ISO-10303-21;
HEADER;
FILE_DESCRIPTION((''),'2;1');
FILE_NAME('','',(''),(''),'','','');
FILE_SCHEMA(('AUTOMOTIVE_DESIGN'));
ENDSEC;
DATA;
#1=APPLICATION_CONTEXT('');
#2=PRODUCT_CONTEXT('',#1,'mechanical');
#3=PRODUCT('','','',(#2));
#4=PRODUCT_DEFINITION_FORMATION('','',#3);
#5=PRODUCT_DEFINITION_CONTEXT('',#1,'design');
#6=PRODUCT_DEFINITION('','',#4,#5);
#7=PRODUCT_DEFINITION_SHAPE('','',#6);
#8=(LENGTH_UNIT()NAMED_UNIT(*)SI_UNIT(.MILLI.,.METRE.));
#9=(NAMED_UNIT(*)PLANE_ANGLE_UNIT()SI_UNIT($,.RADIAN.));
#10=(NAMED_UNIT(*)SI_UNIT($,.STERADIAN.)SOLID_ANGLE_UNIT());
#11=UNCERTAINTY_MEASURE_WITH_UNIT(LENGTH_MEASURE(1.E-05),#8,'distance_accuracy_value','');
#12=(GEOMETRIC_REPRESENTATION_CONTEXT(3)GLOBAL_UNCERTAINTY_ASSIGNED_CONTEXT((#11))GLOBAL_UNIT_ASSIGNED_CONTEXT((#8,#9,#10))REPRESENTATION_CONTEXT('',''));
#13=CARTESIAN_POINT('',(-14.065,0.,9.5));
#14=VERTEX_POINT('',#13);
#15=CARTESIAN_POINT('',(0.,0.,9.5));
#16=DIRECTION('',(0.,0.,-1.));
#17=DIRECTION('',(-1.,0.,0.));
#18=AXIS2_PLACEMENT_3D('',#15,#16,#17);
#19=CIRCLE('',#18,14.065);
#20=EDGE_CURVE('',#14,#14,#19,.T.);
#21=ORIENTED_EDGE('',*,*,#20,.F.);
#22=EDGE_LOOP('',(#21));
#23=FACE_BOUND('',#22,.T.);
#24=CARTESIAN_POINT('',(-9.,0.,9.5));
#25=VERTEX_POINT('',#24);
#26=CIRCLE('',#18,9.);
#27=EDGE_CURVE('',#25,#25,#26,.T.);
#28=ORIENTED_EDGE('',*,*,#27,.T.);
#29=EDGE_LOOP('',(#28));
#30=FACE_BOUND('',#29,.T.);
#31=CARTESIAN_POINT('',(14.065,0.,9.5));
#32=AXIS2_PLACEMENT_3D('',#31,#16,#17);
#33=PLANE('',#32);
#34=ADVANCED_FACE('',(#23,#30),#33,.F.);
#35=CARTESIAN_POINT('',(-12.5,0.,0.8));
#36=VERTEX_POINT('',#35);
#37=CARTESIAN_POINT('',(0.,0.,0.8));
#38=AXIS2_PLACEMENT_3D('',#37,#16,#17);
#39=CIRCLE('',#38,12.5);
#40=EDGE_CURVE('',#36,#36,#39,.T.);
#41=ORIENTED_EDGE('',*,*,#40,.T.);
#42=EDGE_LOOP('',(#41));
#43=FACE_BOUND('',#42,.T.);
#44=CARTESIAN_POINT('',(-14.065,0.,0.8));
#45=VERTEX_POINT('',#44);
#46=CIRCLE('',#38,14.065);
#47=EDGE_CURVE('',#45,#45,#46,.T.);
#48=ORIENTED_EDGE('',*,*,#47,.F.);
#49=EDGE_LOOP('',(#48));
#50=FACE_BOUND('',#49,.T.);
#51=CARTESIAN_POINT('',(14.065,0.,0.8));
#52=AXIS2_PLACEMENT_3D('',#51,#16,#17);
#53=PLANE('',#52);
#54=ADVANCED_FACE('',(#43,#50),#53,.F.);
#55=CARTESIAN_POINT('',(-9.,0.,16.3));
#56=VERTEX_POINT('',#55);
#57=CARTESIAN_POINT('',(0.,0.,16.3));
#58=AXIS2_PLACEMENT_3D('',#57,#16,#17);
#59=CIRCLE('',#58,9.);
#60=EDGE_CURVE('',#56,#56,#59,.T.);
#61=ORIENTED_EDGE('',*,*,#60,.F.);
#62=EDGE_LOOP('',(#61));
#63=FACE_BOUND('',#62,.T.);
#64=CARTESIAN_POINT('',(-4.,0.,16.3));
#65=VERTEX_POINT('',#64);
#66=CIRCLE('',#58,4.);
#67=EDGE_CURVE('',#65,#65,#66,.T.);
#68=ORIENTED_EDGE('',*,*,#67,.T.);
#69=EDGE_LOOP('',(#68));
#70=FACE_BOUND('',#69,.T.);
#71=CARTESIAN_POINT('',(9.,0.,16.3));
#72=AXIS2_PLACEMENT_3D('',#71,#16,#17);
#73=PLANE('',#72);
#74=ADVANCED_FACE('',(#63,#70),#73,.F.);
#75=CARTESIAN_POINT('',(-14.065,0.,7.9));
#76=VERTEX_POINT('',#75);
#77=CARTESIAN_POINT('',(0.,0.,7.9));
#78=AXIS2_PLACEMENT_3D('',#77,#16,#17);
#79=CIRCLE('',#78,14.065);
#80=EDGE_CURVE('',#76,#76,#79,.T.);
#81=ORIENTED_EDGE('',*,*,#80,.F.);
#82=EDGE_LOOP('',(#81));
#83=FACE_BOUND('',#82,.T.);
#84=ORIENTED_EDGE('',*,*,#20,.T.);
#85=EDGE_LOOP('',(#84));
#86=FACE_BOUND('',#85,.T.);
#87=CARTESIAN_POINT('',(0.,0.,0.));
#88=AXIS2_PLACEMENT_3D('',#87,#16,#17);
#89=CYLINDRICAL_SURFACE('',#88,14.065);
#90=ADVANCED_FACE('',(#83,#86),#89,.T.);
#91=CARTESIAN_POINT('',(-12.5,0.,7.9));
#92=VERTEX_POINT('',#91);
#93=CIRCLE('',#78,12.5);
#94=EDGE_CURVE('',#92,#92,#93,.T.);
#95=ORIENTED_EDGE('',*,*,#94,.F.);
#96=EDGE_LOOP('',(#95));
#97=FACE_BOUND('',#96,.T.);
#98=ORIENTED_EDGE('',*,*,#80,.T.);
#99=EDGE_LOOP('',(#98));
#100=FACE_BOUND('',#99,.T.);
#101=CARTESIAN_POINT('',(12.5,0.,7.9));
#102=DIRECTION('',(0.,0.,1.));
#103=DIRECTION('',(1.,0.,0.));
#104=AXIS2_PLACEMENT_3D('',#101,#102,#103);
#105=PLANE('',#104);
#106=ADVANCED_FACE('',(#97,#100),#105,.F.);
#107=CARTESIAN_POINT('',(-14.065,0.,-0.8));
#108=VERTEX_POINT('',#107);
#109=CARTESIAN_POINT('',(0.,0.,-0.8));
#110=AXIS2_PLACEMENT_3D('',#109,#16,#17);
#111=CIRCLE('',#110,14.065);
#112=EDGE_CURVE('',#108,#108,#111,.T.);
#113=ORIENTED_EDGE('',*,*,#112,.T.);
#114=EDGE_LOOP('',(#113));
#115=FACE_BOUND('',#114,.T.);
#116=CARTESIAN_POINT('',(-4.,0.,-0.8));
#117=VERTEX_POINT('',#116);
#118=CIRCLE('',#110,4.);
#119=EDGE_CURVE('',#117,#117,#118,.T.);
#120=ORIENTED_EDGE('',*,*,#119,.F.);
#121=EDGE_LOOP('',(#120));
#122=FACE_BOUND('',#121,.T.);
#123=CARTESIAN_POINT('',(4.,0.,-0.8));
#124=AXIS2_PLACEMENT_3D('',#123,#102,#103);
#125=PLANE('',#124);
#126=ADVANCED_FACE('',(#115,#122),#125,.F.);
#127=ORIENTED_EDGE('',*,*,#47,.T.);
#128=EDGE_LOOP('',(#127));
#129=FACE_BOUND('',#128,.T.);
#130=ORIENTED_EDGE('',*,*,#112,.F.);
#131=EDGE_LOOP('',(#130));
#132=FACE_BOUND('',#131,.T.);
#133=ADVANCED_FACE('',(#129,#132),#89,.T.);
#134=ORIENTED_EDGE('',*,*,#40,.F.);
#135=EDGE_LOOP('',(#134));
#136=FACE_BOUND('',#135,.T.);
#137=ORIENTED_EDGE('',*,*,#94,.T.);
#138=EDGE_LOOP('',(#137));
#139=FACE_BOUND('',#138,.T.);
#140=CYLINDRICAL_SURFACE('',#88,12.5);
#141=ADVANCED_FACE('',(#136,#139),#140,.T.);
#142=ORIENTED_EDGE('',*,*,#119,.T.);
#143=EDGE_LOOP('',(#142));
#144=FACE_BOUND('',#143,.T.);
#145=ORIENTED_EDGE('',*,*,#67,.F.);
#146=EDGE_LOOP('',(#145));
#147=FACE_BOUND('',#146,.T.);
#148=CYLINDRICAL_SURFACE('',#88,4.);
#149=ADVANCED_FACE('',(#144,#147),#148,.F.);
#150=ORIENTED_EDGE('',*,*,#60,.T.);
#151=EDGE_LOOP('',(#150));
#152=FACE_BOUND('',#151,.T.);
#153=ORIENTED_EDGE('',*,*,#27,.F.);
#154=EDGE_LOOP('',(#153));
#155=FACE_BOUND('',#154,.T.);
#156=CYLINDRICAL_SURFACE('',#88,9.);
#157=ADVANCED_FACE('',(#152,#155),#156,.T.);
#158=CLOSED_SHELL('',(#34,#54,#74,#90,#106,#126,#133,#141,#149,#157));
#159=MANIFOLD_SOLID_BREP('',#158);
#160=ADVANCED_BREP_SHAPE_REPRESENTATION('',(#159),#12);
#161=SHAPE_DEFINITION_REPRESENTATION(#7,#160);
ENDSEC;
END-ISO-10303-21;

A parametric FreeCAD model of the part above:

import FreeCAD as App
import Part
import Sketcher

V = App.Vector
Q = App.Units.Quantity


def add_polygon(sketch, points):
    """Adds a closed chain of lines whose ends are joined by coincident constraints."""
    first, n = sketch.GeometryCount, len(points)
    for a, b in zip(points, points[1:] + points[:1]):
        sketch.addGeometry(Part.LineSegment(App.Vector(*a, 0), App.Vector(*b, 0)), False)
    for i in range(n):
        sketch.addConstraint(Sketcher.Constraint("Coincident", first + i, 2, first + (i + 1) % n, 1))

doc = App.newDocument("Part")
body = doc.addObject("PartDesign::Body", "Body")

sketch1 = body.newObject("Sketcher::SketchObject", "Sketch")
sketch1.AttachmentSupport = (doc.getObject("XZ_Plane"), [""])
sketch1.MapMode = "FlatFace"
add_polygon(sketch1, [(14.065, 0.8), (14.065, -0.8), (4, -0.8), (4, 16.3), (9, 16.3), (9, 9.5), (14.065, 9.5), (14.065, 7.9), (12.5, 7.9), (12.5, 0.8)])
sketch1.addConstraint(Sketcher.Constraint("Vertical", 0))
sketch1.addConstraint(Sketcher.Constraint("Horizontal", 1))
sketch1.addConstraint(Sketcher.Constraint("Vertical", 2))
sketch1.addConstraint(Sketcher.Constraint("Horizontal", 3))
sketch1.addConstraint(Sketcher.Constraint("Vertical", 4))
sketch1.addConstraint(Sketcher.Constraint("Horizontal", 5))
sketch1.addConstraint(Sketcher.Constraint("Vertical", 6))
sketch1.addConstraint(Sketcher.Constraint("Horizontal", 7))
sketch1.addConstraint(Sketcher.Constraint("Vertical", 8))
sketch1.addConstraint(Sketcher.Constraint("Horizontal", 9))
sketch1.addConstraint(Sketcher.Constraint("Vertical", 0, 2, 5, 2))
sketch1.addConstraint(Sketcher.Constraint("Equal", 0, 6))
sketch1.addConstraint(Sketcher.Constraint("DistanceX", 3, 1, 3, 2, Q("5 mm")))
sketch1.addConstraint(Sketcher.Constraint("DistanceY", 0, 2, 0, 1, Q("1.6 mm")))
sketch1.addConstraint(Sketcher.Constraint("DistanceY", 2, 1, 2, 2, Q("17.1 mm")))
sketch1.addConstraint(Sketcher.Constraint("DistanceY", 4, 2, 4, 1, Q("6.8 mm")))
sketch1.addConstraint(Sketcher.Constraint("DistanceX", -1, 1, 1, 2, Q("4 mm")))
sketch1.addConstraint(Sketcher.Constraint("DistanceY", 0, 2, -1, 1, Q("0.8 mm")))
sketch1.addConstraint(Sketcher.Constraint("DistanceX", -1, 1, 7, 2, Q("12.5 mm")))
sketch1.addConstraint(Sketcher.Constraint("DistanceX", 1, 2, 1, 1, Q("10.065 mm")))
revolution = body.newObject("PartDesign::Revolution", "Revolution")
revolution.Profile = sketch1
revolution.ReferenceAxis = (sketch1, ["V_Axis"])
revolution.Angle = 360

doc.recompute()
